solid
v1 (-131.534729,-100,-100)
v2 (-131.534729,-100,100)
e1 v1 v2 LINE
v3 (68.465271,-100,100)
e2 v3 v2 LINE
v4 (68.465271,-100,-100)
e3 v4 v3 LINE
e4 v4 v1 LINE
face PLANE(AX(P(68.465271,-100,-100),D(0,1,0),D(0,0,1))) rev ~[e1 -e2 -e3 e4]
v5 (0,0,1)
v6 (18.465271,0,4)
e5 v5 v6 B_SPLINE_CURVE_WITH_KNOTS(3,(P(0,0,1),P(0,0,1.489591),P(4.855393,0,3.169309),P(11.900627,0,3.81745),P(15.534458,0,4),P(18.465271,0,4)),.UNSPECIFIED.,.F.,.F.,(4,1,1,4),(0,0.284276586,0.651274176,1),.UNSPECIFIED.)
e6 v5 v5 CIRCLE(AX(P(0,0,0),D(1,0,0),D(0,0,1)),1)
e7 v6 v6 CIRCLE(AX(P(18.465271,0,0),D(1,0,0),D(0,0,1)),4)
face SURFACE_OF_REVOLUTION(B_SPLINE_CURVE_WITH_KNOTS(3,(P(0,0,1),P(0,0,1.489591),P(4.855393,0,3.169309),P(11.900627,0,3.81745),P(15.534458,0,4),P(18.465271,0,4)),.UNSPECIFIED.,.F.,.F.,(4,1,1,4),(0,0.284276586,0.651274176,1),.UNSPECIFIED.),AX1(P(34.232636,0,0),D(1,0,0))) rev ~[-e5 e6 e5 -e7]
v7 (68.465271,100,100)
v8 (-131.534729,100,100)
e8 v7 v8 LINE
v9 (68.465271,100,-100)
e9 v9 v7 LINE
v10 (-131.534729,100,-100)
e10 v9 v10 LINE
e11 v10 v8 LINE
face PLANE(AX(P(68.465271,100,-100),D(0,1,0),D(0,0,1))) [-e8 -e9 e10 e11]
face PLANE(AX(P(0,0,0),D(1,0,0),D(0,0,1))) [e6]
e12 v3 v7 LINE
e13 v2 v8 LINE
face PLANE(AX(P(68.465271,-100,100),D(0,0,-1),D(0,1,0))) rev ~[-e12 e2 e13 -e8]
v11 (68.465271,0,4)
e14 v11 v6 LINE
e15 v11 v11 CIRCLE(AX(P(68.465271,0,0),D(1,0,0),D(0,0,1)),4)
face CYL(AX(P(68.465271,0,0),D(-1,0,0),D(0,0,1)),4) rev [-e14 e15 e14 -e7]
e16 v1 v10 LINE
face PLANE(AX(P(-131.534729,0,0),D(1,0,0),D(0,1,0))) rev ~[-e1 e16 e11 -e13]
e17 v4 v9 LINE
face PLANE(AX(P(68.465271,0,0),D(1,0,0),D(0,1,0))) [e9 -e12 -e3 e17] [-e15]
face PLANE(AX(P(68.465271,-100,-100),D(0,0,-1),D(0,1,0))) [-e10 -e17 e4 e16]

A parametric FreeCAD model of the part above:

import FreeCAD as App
import Part
import Sketcher
from FreeCAD import Vector
Q = App.Units.Quantity

doc = App.newDocument("Part")
params = doc.addObject("Spreadsheet::Sheet", "Params")
for row, (alias, value) in enumerate([
    ("sketch1_width", "50 mm"),
    ("revolution_angle", "360 deg"),
    ("sketch2_width", "200 mm"),
    ("pad1_length", "200 mm"),
], start=1):
    params.set(f"A{row}", alias)
    params.set(f"B{row}", "=" + value)
    params.setAlias(f"B{row}", alias)

body = doc.addObject("PartDesign::Body", "Body")

sketch1 = body.newObject("Sketcher::SketchObject", "Sketch")
sketch1.AttachmentSupport = (doc.getObject("XZ_Plane"), [""])
sketch1.MapMode = "FlatFace"
sketch1.addGeometry([
    Part.LineSegment(Vector(0, 1, 0), Vector(0, 0, 0)),
    Part.LineSegment(Vector(0, 0, 0), Vector(68.465271, 0, 0)),
    Part.LineSegment(Vector(68.465271, 0, 0), Vector(68.465271, 4, 0)),
    Part.LineSegment(Vector(68.465271, 4, 0), Vector(18.465271, 4, 0)),
    Part.BSplineCurve([Vector(0, 1, 0), Vector(0, 1.489591, 0), Vector(4.855393, 3.169309, 0), Vector(11.900627, 3.81745, 0), Vector(15.534458, 4, 0), Vector(18.465271, 4, 0)], [4, 1, 1, 4], [0, 0.284276586, 0.651274176, 1], False, 3, [1, 1, 1, 1, 1, 1], False),
], False)
sketch1.addConstraint([
    Sketcher.Constraint("Block", 4),
    Sketcher.Constraint("Coincident", 0, 2, 1, 1),
    Sketcher.Constraint("Coincident", 1, 2, 2, 1),
    Sketcher.Constraint("Coincident", 2, 2, 3, 1),
    Sketcher.Constraint("Coincident", 3, 2, 4, 2),
    Sketcher.Constraint("Coincident", 4, 1, 0, 1),
    Sketcher.Constraint("Vertical", 0),
    Sketcher.Constraint("Horizontal", 1),
    Sketcher.Constraint("Vertical", 2),
    Sketcher.Constraint("Horizontal", 3),
    Sketcher.Constraint("PointOnObject", 1, 2, -1),
    Sketcher.Constraint("DistanceX", 3, 2, 3, 1, Q("50 mm")),
])
sketch1.setExpression("Constraints[11]", "Params.sketch1_width")
revolution = body.newObject("PartDesign::Revolution", "Revolution")
revolution.Profile = sketch1
revolution.ReferenceAxis = (sketch1, ["H_Axis"])
revolution.setExpression("Angle", "Params.revolution_angle")
body2 = doc.addObject("PartDesign::Body", "Body001")

sketch2 = body2.newObject("Sketcher::SketchObject", "Sketch001")
sketch2.AttachmentSupport = (doc.getObject("YZ_Plane001"), [""])
sketch2.MapMode = "FlatFace"
sketch2.AttachmentOffset = App.Placement(Vector(0, 0, 68.465271), App.Rotation())
sketch2.addGeometry([
    Part.LineSegment(Vector(-100, 100, 0), Vector(-100, -100, 0)),
    Part.LineSegment(Vector(-100, -100, 0), Vector(100, -100, 0)),
    Part.LineSegment(Vector(100, -100, 0), Vector(100, 100, 0)),
    Part.LineSegment(Vector(100, 100, 0), Vector(-100, 100, 0)),
], False)
sketch2.addConstraint([
    Sketcher.Constraint("Coincident", 0, 2, 1, 1),
    Sketcher.Constraint("Coincident", 1, 2, 2, 1),
    Sketcher.Constraint("Coincident", 2, 2, 3, 1),
    Sketcher.Constraint("Coincident", 3, 2, 0, 1),
    Sketcher.Constraint("Vertical", 0),
    Sketcher.Constraint("Horizontal", 1),
    Sketcher.Constraint("Vertical", 2),
    Sketcher.Constraint("Horizontal", 3),
    Sketcher.Constraint("Symmetric", 0, 2, 2, 2, -1, 1),
    Sketcher.Constraint("Equal", 3, 0),
    Sketcher.Constraint("DistanceX", 1, 1, 1, 2, Q("200 mm")),
])
sketch2.setExpression("Constraints[10]", "Params.sketch2_width")
pad1 = body2.newObject("PartDesign::Pad", "Pad")
pad1.Profile = sketch2
pad1.setExpression("Length", "Params.pad1_length")
pad1.Reversed = True
doc.recompute()

boolean = body2.newObject("PartDesign::Boolean", "Boolean")
boolean.Type = "Cut"
boolean.addObjects([body])

doc.recompute()
